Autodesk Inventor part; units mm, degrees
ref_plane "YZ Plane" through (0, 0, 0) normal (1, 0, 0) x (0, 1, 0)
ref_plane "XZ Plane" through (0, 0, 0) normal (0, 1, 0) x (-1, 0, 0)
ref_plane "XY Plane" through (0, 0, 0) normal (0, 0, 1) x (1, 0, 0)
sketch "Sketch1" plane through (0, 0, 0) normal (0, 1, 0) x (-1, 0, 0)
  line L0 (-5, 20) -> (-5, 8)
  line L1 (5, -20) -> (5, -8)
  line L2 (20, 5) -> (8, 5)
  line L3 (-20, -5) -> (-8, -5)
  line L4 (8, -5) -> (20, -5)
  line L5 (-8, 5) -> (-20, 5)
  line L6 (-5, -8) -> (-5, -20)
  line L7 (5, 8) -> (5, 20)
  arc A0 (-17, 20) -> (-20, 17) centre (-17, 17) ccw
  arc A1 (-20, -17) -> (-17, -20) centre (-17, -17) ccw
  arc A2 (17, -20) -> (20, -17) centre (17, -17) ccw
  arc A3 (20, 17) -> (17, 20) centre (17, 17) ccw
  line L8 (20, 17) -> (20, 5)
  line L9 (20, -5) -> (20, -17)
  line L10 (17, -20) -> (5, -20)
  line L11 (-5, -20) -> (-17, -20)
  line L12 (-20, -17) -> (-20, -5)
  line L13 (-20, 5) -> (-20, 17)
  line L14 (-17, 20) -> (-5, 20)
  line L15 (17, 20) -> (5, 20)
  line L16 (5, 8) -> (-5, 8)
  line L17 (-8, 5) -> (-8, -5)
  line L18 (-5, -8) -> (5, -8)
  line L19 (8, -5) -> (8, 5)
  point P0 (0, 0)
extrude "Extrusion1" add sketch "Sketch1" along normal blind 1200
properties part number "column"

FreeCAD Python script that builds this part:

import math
import FreeCAD as App
import Part
import Sketcher

V = App.Vector
Q = App.Units.Quantity

doc = App.newDocument("Part")
body = doc.addObject("PartDesign::Body", "Body")

sketch1 = body.newObject("Sketcher::SketchObject", "Sketch")
sketch1.AttachmentSupport = (doc.getObject("XZ_Plane"), [""])
sketch1.MapMode = "FlatFace"
sketch1.addGeometry(Part.LineSegment(V(5, 8, 0), V(5, 20, 0)), False)
sketch1.addGeometry(Part.LineSegment(V(5, 20, 0), V(17, 20, 0)), False)
sketch1.addGeometry(Part.ArcOfCircle(Part.Circle(V(17, 17, 0), V(0, 0, 1), 3), math.radians(0), math.radians(90)), False)
sketch1.addGeometry(Part.LineSegment(V(20, 17, 0), V(20, 5, 0)), False)
sketch1.addGeometry(Part.LineSegment(V(20, 5, 0), V(8, 5, 0)), False)
sketch1.addGeometry(Part.LineSegment(V(8, 5, 0), V(8, -5, 0)), False)
sketch1.addGeometry(Part.LineSegment(V(8, -5, 0), V(20, -5, 0)), False)
sketch1.addGeometry(Part.LineSegment(V(20, -5, 0), V(20, -17, 0)), False)
sketch1.addGeometry(Part.ArcOfCircle(Part.Circle(V(17, -17, 0), V(0, 0, 1), 3), math.radians(-90), math.radians(0)), False)
sketch1.addGeometry(Part.LineSegment(V(17, -20, 0), V(5, -20, 0)), False)
sketch1.addGeometry(Part.LineSegment(V(5, -20, 0), V(5, -8, 0)), False)
sketch1.addGeometry(Part.LineSegment(V(5, -8, 0), V(-5, -8, 0)), False)
sketch1.addGeometry(Part.LineSegment(V(-5, -8, 0), V(-5, -20, 0)), False)
sketch1.addGeometry(Part.LineSegment(V(-5, -20, 0), V(-17, -20, 0)), False)
sketch1.addGeometry(Part.ArcOfCircle(Part.Circle(V(-17, -17, 0), V(0, 0, 1), 3), math.radians(180), math.radians(270)), False)
sketch1.addGeometry(Part.LineSegment(V(-20, -17, 0), V(-20, -5, 0)), False)
sketch1.addGeometry(Part.LineSegment(V(-20, -5, 0), V(-8, -5, 0)), False)
sketch1.addGeometry(Part.LineSegment(V(-8, -5, 0), V(-8, 5, 0)), False)
sketch1.addGeometry(Part.LineSegment(V(-8, 5, 0), V(-20, 5, 0)), False)
sketch1.addGeometry(Part.LineSegment(V(-20, 5, 0), V(-20, 17, 0)), False)
sketch1.addGeometry(Part.ArcOfCircle(Part.Circle(V(-17, 17, 0), V(0, 0, 1), 3), math.radians(90), math.radians(180)), False)
sketch1.addGeometry(Part.LineSegment(V(-17, 20, 0), V(-5, 20, 0)), False)
sketch1.addGeometry(Part.LineSegment(V(-5, 20, 0), V(-5, 8, 0)), False)
sketch1.addGeometry(Part.LineSegment(V(-5, 8, 0), V(5, 8, 0)), False)
sketch1.addConstraint(Sketcher.Constraint("Coincident", 0, 2, 1, 1))
sketch1.addConstraint(Sketcher.Constraint("Tangent", 1, 2, 2, 2))
sketch1.addConstraint(Sketcher.Constraint("Tangent", 2, 1, 3, 1))
sketch1.addConstraint(Sketcher.Constraint("Coincident", 3, 2, 4, 1))
sketch1.addConstraint(Sketcher.Constraint("Coincident", 4, 2, 5, 1))
sketch1.addConstraint(Sketcher.Constraint("Coincident", 5, 2, 6, 1))
sketch1.addConstraint(Sketcher.Constraint("Coincident", 6, 2, 7, 1))
sketch1.addConstraint(Sketcher.Constraint("Tangent", 7, 2, 8, 2))
sketch1.addConstraint(Sketcher.Constraint("Tangent", 8, 1, 9, 1))
sketch1.addConstraint(Sketcher.Constraint("Coincident", 9, 2, 10, 1))
sketch1.addConstraint(Sketcher.Constraint("Coincident", 10, 2, 11, 1))
sketch1.addConstraint(Sketcher.Constraint("Coincident", 11, 2, 12, 1))
sketch1.addConstraint(Sketcher.Constraint("Coincident", 12, 2, 13, 1))
sketch1.addConstraint(Sketcher.Constraint("Tangent", 13, 2, 14, 2))
sketch1.addConstraint(Sketcher.Constraint("Tangent", 14, 1, 15, 1))
sketch1.addConstraint(Sketcher.Constraint("Coincident", 15, 2, 16, 1))
sketch1.addConstraint(Sketcher.Constraint("Coincident", 16, 2, 17, 1))
sketch1.addConstraint(Sketcher.Constraint("Coincident", 17, 2, 18, 1))
sketch1.addConstraint(Sketcher.Constraint("Coincident", 18, 2, 19, 1))
sketch1.addConstraint(Sketcher.Constraint("Tangent", 19, 2, 20, 2))
sketch1.addConstraint(Sketcher.Constraint("Tangent", 20, 1, 21, 1))
sketch1.addConstraint(Sketcher.Constraint("Coincident", 21, 2, 22, 1))
sketch1.addConstraint(Sketcher.Constraint("Coincident", 22, 2, 23, 1))
sketch1.addConstraint(Sketcher.Constraint("Coincident", 23, 2, 0, 1))
sketch1.addConstraint(Sketcher.Constraint("Vertical", 0))
sketch1.addConstraint(Sketcher.Constraint("Horizontal", 1))
sketch1.addConstraint(Sketcher.Constraint("Vertical", 3))
sketch1.addConstraint(Sketcher.Constraint("Horizontal", 4))
sketch1.addConstraint(Sketcher.Constraint("Vertical", 5))
sketch1.addConstraint(Sketcher.Constraint("Horizontal", 6))
sketch1.addConstraint(Sketcher.Constraint("Vertical", 7))
sketch1.addConstraint(Sketcher.Constraint("Horizontal", 9))
sketch1.addConstraint(Sketcher.Constraint("Vertical", 10))
sketch1.addConstraint(Sketcher.Constraint("Horizontal", 11))
sketch1.addConstraint(Sketcher.Constraint("Vertical", 12))
sketch1.addConstraint(Sketcher.Constraint("Horizontal", 13))
sketch1.addConstraint(Sketcher.Constraint("Vertical", 15))
sketch1.addConstraint(Sketcher.Constraint("Horizontal", 16))
sketch1.addConstraint(Sketcher.Constraint("Vertical", 17))
sketch1.addConstraint(Sketcher.Constraint("Horizontal", 18))
sketch1.addConstraint(Sketcher.Constraint("Vertical", 19))
sketch1.addConstraint(Sketcher.Constraint("Horizontal", 21))
sketch1.addConstraint(Sketcher.Constraint("Vertical", 22))
sketch1.addConstraint(Sketcher.Constraint("Horizontal", 23))
sketch1.addConstraint(Sketcher.Constraint("Equal", 2, 8))
sketch1.addConstraint(Sketcher.Constraint("Equal", 8, 14))
sketch1.addConstraint(Sketcher.Constraint("Equal", 14, 20))
sketch1.addConstraint(Sketcher.Constraint("Symmetric", 2, 3, 14, 3, -1, 1))
sketch1.addConstraint(Sketcher.Constraint("Symmetric", 8, 3, 20, 3, -1, 1))
sketch1.addConstraint(Sketcher.Constraint("Symmetric", 4, 2, 16, 2, -1, 1))
sketch1.addConstraint(Sketcher.Constraint("Symmetric", 10, 2, 22, 2, -1, 1))
sketch1.addConstraint(Sketcher.Constraint("Symmetric", 8, 3, 14, 3, -2))
sketch1.addConstraint(Sketcher.Constraint("Horizontal", 6, 2, 15, 2))
sketch1.addConstraint(Sketcher.Constraint("Horizontal", 4, 2, 17, 2))
sketch1.addConstraint(Sketcher.Constraint("Vertical", 0, 2, 9, 2))
sketch1.addConstraint(Sketcher.Constraint("Vertical", 12, 2, 21, 2))
sketch1.addConstraint(Sketcher.Constraint("Equal", 1, 4))
sketch1.addConstraint(Sketcher.Constraint("Equal", 21, 0))
sketch1.addConstraint(Sketcher.Constraint("Equal", 0, 3))
sketch1.addConstraint(Sketcher.Constraint("Equal", 23, 5))
sketch1.addConstraint(Sketcher.Constraint("Radius", 2, Q("3 mm")))
sketch1.addConstraint(Sketcher.Constraint("DistanceX", 1, 1, 1, 2, Q("12 mm")))
sketch1.addConstraint(Sketcher.Constraint("DistanceX", 11, 2, 11, 1, Q("10 mm")))
pad1 = body.newObject("PartDesign::Pad", "Pad")
pad1.Profile = sketch1
pad1.Length = 1200
pad1.Reversed = True

doc.recompute()
